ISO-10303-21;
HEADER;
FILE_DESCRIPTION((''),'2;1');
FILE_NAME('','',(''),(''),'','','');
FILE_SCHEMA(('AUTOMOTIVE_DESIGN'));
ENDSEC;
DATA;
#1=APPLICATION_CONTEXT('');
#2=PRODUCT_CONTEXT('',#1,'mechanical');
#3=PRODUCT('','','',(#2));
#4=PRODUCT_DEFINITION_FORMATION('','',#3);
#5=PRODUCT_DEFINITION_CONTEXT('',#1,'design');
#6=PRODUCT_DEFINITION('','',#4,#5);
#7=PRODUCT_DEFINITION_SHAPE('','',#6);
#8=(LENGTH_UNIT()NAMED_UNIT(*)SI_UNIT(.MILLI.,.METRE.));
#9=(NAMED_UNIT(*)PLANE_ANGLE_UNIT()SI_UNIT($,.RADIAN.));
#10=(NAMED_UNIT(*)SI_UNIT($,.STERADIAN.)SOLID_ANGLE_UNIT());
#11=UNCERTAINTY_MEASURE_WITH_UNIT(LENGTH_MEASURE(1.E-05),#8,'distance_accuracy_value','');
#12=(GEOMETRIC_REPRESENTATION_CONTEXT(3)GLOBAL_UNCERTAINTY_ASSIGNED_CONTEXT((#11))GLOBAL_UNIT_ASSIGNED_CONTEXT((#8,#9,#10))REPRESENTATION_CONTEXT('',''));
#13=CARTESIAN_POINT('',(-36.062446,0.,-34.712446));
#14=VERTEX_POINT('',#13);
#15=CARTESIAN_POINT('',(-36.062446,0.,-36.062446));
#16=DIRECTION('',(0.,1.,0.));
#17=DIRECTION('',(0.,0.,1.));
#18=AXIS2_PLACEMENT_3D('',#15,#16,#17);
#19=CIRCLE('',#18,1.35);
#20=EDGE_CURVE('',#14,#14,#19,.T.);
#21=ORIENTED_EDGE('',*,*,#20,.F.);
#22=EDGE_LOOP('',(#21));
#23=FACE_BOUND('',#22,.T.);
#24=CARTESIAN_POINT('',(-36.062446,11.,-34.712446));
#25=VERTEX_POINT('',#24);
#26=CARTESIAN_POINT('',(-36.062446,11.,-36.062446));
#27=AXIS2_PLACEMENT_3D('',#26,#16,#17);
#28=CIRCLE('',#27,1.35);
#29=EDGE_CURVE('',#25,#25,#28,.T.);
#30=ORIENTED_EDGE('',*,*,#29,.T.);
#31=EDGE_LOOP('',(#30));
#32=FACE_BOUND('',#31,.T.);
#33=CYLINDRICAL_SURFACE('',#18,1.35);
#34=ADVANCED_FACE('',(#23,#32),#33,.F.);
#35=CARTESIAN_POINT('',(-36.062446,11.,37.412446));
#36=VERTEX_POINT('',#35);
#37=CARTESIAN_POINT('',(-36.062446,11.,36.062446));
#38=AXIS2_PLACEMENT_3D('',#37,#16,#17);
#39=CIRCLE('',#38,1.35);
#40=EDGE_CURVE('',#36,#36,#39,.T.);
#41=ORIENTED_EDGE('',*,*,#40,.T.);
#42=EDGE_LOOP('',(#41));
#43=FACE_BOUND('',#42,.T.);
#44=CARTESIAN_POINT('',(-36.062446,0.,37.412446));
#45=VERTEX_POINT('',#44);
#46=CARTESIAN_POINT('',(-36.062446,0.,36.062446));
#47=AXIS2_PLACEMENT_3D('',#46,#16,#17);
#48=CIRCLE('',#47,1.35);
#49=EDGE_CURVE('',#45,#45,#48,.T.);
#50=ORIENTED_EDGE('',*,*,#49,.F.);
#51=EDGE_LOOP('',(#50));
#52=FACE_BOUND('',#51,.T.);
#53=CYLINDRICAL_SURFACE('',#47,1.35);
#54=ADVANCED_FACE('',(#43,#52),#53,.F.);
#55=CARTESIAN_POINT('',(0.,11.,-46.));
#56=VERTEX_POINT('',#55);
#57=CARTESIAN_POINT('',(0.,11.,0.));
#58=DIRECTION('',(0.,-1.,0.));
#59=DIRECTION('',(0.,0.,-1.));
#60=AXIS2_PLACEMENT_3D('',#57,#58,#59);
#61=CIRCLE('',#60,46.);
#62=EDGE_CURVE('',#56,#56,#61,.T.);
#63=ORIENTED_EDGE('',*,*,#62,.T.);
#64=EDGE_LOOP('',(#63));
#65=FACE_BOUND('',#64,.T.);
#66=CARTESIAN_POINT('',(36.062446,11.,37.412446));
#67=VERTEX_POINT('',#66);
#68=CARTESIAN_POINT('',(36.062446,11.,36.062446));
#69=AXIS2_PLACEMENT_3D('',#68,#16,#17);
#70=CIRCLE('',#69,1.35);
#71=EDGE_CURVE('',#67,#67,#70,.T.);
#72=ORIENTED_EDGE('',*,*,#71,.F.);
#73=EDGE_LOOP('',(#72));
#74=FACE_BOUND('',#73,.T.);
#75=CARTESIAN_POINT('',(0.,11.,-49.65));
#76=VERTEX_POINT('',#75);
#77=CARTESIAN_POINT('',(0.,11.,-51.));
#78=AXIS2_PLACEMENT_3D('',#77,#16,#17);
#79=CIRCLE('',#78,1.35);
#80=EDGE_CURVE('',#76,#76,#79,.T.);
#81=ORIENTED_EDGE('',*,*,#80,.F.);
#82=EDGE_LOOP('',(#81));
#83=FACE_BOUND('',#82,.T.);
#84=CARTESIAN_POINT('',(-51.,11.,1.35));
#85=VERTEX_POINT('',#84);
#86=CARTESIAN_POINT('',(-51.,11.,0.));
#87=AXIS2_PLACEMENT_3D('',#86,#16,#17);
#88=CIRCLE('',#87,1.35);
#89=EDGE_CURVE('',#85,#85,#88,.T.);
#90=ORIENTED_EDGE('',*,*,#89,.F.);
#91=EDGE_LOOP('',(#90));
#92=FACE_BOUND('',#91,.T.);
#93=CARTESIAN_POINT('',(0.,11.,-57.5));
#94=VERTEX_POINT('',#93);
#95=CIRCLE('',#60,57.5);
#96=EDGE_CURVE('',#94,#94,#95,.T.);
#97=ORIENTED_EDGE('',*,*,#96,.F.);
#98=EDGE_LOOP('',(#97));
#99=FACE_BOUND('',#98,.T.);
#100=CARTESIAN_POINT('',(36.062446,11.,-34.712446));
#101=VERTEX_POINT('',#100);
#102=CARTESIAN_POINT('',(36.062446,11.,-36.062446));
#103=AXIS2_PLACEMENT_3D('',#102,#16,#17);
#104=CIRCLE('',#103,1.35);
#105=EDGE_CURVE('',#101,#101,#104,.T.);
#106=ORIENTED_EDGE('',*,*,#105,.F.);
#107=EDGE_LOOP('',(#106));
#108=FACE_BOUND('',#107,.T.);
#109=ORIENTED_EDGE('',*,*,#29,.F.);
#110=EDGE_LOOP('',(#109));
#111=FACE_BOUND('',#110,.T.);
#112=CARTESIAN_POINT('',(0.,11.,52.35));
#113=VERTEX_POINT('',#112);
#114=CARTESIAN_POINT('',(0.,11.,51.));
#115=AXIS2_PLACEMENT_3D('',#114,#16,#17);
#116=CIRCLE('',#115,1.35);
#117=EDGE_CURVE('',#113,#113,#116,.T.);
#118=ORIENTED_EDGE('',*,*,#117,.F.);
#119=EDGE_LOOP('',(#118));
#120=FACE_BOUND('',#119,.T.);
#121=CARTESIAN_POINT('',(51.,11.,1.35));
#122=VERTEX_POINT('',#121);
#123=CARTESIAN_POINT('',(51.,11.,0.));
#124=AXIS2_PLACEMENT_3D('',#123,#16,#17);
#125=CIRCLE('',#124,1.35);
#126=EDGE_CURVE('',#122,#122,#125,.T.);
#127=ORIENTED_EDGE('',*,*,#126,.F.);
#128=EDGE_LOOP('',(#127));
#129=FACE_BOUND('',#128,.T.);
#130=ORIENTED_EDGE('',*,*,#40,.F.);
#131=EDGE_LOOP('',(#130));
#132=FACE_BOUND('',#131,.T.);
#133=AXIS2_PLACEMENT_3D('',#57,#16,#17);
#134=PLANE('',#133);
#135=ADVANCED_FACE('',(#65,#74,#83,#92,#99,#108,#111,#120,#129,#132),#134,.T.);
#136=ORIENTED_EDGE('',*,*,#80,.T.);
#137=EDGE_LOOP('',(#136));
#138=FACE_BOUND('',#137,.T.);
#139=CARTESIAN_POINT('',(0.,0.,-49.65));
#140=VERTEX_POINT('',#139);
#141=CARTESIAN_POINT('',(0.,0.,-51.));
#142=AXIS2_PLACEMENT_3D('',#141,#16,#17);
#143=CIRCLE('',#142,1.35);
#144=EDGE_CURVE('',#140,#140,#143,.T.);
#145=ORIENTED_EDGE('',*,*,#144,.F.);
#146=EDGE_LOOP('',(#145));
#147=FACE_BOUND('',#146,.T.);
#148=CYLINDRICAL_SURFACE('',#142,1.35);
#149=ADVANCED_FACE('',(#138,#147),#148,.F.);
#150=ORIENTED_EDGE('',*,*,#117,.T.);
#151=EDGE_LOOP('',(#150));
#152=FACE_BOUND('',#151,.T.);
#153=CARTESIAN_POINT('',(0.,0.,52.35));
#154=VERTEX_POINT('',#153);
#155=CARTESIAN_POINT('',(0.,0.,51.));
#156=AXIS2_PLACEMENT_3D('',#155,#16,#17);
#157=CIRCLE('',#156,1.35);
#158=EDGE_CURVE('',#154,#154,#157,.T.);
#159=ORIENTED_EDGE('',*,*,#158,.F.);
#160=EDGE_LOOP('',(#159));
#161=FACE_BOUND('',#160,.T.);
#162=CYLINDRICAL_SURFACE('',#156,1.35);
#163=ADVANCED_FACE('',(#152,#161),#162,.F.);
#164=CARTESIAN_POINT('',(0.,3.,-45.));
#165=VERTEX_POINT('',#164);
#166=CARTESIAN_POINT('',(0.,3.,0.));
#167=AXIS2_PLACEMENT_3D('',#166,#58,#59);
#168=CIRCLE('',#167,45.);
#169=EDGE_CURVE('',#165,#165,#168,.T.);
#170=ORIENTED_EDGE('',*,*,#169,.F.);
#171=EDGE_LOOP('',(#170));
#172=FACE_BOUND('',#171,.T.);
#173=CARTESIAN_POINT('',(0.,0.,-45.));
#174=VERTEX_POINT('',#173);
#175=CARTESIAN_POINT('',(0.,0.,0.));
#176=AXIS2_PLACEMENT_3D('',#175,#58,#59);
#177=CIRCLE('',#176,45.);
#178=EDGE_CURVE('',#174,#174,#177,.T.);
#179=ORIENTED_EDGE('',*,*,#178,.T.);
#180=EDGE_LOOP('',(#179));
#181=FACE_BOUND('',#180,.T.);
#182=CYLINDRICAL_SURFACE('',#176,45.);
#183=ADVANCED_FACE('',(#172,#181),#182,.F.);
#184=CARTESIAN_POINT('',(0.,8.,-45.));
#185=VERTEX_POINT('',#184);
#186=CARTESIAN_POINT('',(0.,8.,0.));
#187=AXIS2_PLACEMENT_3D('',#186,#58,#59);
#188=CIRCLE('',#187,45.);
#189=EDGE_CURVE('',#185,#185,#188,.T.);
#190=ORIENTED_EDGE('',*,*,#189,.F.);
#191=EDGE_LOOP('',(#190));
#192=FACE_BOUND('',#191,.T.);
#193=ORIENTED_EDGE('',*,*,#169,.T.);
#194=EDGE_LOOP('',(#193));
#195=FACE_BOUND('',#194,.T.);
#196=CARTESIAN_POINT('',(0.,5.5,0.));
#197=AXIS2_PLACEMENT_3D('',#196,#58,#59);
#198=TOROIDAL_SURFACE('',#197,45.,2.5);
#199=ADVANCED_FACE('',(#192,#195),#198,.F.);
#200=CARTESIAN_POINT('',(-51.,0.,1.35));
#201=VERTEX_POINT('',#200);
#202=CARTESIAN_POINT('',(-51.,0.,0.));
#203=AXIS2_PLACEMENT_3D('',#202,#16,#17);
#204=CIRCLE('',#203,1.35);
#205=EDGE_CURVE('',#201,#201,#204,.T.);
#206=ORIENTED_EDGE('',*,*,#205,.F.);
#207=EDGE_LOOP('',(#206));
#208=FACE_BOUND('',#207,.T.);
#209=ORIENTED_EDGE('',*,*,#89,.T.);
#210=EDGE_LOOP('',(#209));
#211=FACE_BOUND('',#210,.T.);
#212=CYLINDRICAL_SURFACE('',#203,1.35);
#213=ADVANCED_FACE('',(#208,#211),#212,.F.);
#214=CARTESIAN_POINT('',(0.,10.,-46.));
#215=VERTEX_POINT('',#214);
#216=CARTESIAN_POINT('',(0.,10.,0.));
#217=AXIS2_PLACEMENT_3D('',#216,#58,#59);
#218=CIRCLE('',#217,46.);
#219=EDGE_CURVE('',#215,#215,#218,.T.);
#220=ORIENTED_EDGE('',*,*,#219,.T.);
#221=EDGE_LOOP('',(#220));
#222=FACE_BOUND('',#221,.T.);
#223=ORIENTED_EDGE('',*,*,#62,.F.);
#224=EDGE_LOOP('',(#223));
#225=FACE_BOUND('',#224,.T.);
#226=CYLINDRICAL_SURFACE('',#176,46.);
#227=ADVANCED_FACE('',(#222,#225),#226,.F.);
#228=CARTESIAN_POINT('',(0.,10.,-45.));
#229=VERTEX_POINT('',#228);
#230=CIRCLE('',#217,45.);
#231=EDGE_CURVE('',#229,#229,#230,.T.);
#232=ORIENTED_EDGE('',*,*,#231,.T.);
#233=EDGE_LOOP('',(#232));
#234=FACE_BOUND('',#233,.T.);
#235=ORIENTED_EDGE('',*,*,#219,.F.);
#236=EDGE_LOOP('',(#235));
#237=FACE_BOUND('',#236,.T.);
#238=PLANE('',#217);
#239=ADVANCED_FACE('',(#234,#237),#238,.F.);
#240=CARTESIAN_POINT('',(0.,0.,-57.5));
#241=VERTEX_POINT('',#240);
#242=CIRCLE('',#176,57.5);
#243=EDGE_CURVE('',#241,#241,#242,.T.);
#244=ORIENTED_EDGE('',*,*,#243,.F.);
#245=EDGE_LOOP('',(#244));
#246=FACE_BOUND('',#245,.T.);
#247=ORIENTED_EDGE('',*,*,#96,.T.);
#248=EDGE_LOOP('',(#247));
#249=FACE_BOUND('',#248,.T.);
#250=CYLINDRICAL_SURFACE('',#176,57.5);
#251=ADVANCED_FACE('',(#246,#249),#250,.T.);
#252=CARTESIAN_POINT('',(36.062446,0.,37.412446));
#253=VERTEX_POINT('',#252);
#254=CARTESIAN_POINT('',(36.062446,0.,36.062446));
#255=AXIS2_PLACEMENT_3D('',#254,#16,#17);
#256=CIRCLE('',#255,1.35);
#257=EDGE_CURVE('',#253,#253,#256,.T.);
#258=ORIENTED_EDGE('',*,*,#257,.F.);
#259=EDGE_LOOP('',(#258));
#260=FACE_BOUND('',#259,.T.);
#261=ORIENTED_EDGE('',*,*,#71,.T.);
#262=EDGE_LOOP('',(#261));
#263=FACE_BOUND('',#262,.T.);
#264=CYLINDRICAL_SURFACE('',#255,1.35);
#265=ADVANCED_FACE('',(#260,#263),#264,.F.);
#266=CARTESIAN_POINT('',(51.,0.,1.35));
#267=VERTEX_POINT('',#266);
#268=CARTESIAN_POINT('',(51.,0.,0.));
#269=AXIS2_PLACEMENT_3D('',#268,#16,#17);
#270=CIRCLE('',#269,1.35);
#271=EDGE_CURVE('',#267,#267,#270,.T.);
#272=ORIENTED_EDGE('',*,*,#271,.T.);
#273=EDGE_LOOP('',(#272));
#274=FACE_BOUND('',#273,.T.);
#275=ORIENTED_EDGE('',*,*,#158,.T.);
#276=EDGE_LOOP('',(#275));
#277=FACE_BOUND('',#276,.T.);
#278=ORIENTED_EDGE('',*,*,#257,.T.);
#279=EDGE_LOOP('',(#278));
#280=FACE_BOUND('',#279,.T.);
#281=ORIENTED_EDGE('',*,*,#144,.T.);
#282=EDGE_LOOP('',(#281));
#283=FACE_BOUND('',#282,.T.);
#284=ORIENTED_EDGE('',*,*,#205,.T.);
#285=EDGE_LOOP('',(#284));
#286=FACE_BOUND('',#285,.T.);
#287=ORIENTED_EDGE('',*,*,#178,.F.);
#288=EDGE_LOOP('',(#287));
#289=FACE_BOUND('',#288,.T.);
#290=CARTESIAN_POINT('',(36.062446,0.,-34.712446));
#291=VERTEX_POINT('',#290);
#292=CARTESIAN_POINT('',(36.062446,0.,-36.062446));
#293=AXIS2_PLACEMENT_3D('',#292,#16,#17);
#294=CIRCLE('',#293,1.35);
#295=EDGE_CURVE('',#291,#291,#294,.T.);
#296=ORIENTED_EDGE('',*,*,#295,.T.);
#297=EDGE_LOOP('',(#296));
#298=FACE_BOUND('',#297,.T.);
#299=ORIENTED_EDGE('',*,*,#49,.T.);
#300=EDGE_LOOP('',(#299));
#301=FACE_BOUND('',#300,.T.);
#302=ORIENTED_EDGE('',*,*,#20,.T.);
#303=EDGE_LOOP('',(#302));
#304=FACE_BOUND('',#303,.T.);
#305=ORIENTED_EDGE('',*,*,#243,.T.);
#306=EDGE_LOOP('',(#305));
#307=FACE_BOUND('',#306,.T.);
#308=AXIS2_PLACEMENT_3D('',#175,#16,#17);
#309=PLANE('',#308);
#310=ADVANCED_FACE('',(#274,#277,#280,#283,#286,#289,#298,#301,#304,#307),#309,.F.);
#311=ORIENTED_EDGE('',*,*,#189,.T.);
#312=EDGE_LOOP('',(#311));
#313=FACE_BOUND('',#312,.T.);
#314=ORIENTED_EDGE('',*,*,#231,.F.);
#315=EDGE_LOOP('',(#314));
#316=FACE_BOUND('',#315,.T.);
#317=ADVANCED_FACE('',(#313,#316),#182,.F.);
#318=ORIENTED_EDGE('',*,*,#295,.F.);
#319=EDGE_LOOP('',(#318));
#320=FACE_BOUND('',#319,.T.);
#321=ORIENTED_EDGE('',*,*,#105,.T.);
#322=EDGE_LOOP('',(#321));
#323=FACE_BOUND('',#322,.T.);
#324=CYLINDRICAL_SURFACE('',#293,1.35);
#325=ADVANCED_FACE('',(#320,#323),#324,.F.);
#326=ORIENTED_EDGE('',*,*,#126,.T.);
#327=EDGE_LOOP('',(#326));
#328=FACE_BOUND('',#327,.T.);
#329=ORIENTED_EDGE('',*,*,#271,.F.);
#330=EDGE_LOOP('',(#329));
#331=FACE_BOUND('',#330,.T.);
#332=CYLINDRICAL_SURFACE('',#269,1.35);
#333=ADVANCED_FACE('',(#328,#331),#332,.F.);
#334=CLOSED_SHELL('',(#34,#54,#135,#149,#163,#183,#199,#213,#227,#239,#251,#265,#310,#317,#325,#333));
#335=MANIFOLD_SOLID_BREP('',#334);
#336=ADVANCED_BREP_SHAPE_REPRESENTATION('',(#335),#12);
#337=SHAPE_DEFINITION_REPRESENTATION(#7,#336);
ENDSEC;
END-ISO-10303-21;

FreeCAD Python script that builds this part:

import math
import FreeCAD as App
import Part
import Sketcher

V = App.Vector

doc = App.newDocument("Part")
body = doc.addObject("PartDesign::Body", "Body")

# Sketch on XY plane
sketch1 = body.newObject("Sketcher::SketchObject", "Sketch")
sketch1.AttachmentSupport = (doc.getObject("XY_Plane"), [""])
sketch1.MapMode = "FlatFace"
sketch1.addGeometry(Part.LineSegment(V(-57.5, 11, 0), V(-57.5, 0, 0)), False)
sketch1.addGeometry(Part.LineSegment(V(-57.5, 0, 0), V(-45, 0, 0)), False)
sketch1.addGeometry(Part.LineSegment(V(-45, 0, 0), V(-45, 3, 0)), False)
sketch1.addGeometry(Part.ArcOfCircle(Part.Circle(V(-45, 5.5, 0), V(0, 0, 1), 2.5), math.radians(90), math.radians(270)), False)
sketch1.addGeometry(Part.LineSegment(V(-45, 8, 0), V(-45, 10, 0)), False)
sketch1.addGeometry(Part.LineSegment(V(-45, 10, 0), V(-46, 10, 0)), False)
sketch1.addGeometry(Part.LineSegment(V(-46, 10, 0), V(-46, 11, 0)), False)
sketch1.addGeometry(Part.LineSegment(V(-46, 11, 0), V(-57.5, 11, 0)), False)
sketch1.addConstraint(Sketcher.Constraint("Coincident", 0, 2, 1, 1))
sketch1.addConstraint(Sketcher.Constraint("Coincident", 1, 2, 2, 1))
sketch1.addConstraint(Sketcher.Constraint("Coincident", 2, 2, 3, 2))
sketch1.addConstraint(Sketcher.Constraint("Coincident", 3, 1, 4, 1))
sketch1.addConstraint(Sketcher.Constraint("Coincident", 4, 2, 5, 1))
sketch1.addConstraint(Sketcher.Constraint("Coincident", 5, 2, 6, 1))
sketch1.addConstraint(Sketcher.Constraint("Coincident", 6, 2, 7, 1))
sketch1.addConstraint(Sketcher.Constraint("Coincident", 7, 2, 0, 1))
sketch1.addConstraint(Sketcher.Constraint("Vertical", 0))
sketch1.addConstraint(Sketcher.Constraint("Horizontal", 1))
sketch1.addConstraint(Sketcher.Constraint("Vertical", 2))
sketch1.addConstraint(Sketcher.Constraint("Vertical", 4))
sketch1.addConstraint(Sketcher.Constraint("Horizontal", 5))
sketch1.addConstraint(Sketcher.Constraint("Vertical", 6))
sketch1.addConstraint(Sketcher.Constraint("Horizontal", 7))
sketch1.addConstraint(Sketcher.Constraint("PointOnObject", 0, 2, -1))
sketch1.addConstraint(Sketcher.Constraint("Vertical", 3, 3, 1, 2))
sketch1.addConstraint(Sketcher.Constraint("Vertical", 2, 2, 3, 1))
sketch1.addConstraint(Sketcher.Constraint("Equal", 5, 6))
sketch1.addConstraint(Sketcher.Constraint("Radius", 3, 2.5))
sketch1.addConstraint(Sketcher.Constraint("DistanceX", 5, 2, 5, 1, 1.0))
sketch1.addConstraint(Sketcher.Constraint("DistanceY", 0, 2, 0, 1, 11.0))
sketch1.addConstraint(Sketcher.Constraint("DistanceY", 2, 1, 2, 2, 3.0))
sketch1.addConstraint(Sketcher.Constraint("DistanceX", 1, 1, 1, 2, 12.5))
sketch1.addConstraint(Sketcher.Constraint("DistanceX", 3, 3, -1, 1, 45.0))
revolution = body.newObject("PartDesign::Revolution", "Revolution")
revolution.Profile = sketch1
revolution.ReferenceAxis = (sketch1, ["V_Axis"])
revolution.Angle = 360

# Sketch on XZ plane
sketch2 = body.newObject("Sketcher::SketchObject", "Sketch001")
sketch2.AttachmentSupport = (doc.getObject("XZ_Plane"), [""])
sketch2.MapMode = "FlatFace"
sketch2.AttachmentOffset = App.Placement(V(0, 0, -11), App.Rotation())
sketch2.addGeometry(Part.Circle(V(-36.1, 36.1, 0), V(0, 0, 1), 1.4), False)
sketch2.addGeometry(Part.Circle(V(0, 51, 0), V(0, 0, 1), 1.4), False)
sketch2.addGeometry(Part.Circle(V(36.1, 36.1, 0), V(0, 0, 1), 1.4), False)
sketch2.addGeometry(Part.Circle(V(51, 0, 0), V(0, 0, 1), 1.4), False)
sketch2.addGeometry(Part.Circle(V(36.1, -36.1, 0), V(0, 0, 1), 1.4), False)
sketch2.addGeometry(Part.Circle(V(0, -51, 0), V(0, 0, 1), 1.4), False)
sketch2.addGeometry(Part.Circle(V(-36.1, -36.1, 0), V(0, 0, 1), 1.4), False)
sketch2.addGeometry(Part.Circle(V(-51, 0, 0), V(0, 0, 1), 1.4), False)
sketch2.addConstraint(Sketcher.Constraint("Equal", 0, 1))
sketch2.addConstraint(Sketcher.Constraint("Equal", 1, 2))
sketch2.addConstraint(Sketcher.Constraint("Equal", 2, 3))
sketch2.addConstraint(Sketcher.Constraint("Equal", 3, 4))
sketch2.addConstraint(Sketcher.Constraint("Equal", 4, 5))
sketch2.addConstraint(Sketcher.Constraint("Equal", 5, 6))
sketch2.addConstraint(Sketcher.Constraint("Equal", 6, 7))
sketch2.addConstraint(Sketcher.Constraint("Symmetric", 0, 3, 4, 3, -1, 1))
sketch2.addConstraint(Sketcher.Constraint("Symmetric", 1, 3, 5, 3, -1, 1))
sketch2.addConstraint(Sketcher.Constraint("Symmetric", 2, 3, 6, 3, -1, 1))
sketch2.addConstraint(Sketcher.Constraint("Symmetric", 3, 3, 7, 3, -1, 1))
sketch2.addConstraint(Sketcher.Constraint("Symmetric", 0, 3, 2, 3, -2))
sketch2.addConstraint(Sketcher.Constraint("PointOnObject", 1, 3, -2))
sketch2.addConstraint(Sketcher.Constraint("PointOnObject", 3, 3, -1))
sketch2.addConstraint(Sketcher.Constraint("Diameter", 0, 2.7))
sketch2.addConstraint(Sketcher.Constraint("DistanceY", -1, 1, 1, 3, 51.0))
sketch2.addConstraint(Sketcher.Constraint("DistanceX", -1, 1, 3, 3, 51.0))
sketch2.addConstraint(Sketcher.Constraint("DistanceX", 0, 3, 2, 3, 72.124892))
sketch2.addConstraint(Sketcher.Constraint("DistanceY", 4, 3, 2, 3, 72.124892))
pocket1 = body.newObject("PartDesign::Pocket", "Pocket")
pocket1.Profile = sketch2
pocket1.Type = "ThroughAll"
pocket1.Reversed = True

doc.recompute()
